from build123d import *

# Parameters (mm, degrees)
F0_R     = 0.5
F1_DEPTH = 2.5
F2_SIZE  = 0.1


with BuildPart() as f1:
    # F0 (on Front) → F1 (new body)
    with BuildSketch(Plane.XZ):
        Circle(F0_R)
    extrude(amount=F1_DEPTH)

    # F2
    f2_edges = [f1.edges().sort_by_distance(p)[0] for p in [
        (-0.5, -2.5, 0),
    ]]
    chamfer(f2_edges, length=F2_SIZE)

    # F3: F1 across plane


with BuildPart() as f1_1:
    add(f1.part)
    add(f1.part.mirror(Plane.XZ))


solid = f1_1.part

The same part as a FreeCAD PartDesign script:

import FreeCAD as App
import Part
import Sketcher
from FreeCAD import Vector


def edges_at(feature, points):
    """Names of the edges that pass closest to the given points."""
    edges = feature.Shape.Edges
    near = lambda p: min(range(len(edges)), key=lambda i: edges[i].distToShape(Part.Vertex(*p))[0])
    return sorted({f"Edge{near(p) + 1}" for p in points})

doc = App.newDocument("Part")
body = doc.addObject("PartDesign::Body", "Body")

sketch1 = doc.addObject("Sketcher::SketchObject", "Sketch")
body.addObject(sketch1)
sketch1.AttachmentSupport = (doc.XZ_Plane, [""])
sketch1.MapMode = "FlatFace"
sketch1.addGeometry(Part.Circle(Vector(0, 0, 0), Vector(0, 0, 1), 0.5), False)
sketch1.addConstraint(Sketcher.Constraint("Coincident", 0, 3, -1, 1))
sketch1.addConstraint(Sketcher.Constraint("Diameter", 0, 1.0))
pad1 = doc.addObject("PartDesign::Pad", "Pad")
body.addObject(pad1)
pad1.Profile = sketch1
pad1.Length = 2.5
doc.recompute()

chamfer = doc.addObject("PartDesign::Chamfer", "Chamfer")
body.addObject(chamfer)
chamfer.Base = (pad1, edges_at(pad1, [(-0.5, -2.5, 0)]))
chamfer.Size = 0.1
body2 = doc.addObject("PartDesign::Body", "Body001")
doc.recompute()

body2.BaseFeature = body
doc.recompute()

mirroring = doc.addObject("Part::Mirroring", "Mirroring")
mirroring.Source = body
mirroring.Base = Vector(0, 0, 0)
mirroring.Normal = Vector(0, -1, 0)
body3 = doc.addObject("PartDesign::Body", "Body002")
body3.BaseFeature = mirroring
boolean = doc.addObject("PartDesign::Boolean", "Boolean")
body2.addObject(boolean)
boolean.Type = "Fuse"
boolean.addObjects([body3])
doc.recompute()
mirroring.Visibility = False

doc.recompute()
